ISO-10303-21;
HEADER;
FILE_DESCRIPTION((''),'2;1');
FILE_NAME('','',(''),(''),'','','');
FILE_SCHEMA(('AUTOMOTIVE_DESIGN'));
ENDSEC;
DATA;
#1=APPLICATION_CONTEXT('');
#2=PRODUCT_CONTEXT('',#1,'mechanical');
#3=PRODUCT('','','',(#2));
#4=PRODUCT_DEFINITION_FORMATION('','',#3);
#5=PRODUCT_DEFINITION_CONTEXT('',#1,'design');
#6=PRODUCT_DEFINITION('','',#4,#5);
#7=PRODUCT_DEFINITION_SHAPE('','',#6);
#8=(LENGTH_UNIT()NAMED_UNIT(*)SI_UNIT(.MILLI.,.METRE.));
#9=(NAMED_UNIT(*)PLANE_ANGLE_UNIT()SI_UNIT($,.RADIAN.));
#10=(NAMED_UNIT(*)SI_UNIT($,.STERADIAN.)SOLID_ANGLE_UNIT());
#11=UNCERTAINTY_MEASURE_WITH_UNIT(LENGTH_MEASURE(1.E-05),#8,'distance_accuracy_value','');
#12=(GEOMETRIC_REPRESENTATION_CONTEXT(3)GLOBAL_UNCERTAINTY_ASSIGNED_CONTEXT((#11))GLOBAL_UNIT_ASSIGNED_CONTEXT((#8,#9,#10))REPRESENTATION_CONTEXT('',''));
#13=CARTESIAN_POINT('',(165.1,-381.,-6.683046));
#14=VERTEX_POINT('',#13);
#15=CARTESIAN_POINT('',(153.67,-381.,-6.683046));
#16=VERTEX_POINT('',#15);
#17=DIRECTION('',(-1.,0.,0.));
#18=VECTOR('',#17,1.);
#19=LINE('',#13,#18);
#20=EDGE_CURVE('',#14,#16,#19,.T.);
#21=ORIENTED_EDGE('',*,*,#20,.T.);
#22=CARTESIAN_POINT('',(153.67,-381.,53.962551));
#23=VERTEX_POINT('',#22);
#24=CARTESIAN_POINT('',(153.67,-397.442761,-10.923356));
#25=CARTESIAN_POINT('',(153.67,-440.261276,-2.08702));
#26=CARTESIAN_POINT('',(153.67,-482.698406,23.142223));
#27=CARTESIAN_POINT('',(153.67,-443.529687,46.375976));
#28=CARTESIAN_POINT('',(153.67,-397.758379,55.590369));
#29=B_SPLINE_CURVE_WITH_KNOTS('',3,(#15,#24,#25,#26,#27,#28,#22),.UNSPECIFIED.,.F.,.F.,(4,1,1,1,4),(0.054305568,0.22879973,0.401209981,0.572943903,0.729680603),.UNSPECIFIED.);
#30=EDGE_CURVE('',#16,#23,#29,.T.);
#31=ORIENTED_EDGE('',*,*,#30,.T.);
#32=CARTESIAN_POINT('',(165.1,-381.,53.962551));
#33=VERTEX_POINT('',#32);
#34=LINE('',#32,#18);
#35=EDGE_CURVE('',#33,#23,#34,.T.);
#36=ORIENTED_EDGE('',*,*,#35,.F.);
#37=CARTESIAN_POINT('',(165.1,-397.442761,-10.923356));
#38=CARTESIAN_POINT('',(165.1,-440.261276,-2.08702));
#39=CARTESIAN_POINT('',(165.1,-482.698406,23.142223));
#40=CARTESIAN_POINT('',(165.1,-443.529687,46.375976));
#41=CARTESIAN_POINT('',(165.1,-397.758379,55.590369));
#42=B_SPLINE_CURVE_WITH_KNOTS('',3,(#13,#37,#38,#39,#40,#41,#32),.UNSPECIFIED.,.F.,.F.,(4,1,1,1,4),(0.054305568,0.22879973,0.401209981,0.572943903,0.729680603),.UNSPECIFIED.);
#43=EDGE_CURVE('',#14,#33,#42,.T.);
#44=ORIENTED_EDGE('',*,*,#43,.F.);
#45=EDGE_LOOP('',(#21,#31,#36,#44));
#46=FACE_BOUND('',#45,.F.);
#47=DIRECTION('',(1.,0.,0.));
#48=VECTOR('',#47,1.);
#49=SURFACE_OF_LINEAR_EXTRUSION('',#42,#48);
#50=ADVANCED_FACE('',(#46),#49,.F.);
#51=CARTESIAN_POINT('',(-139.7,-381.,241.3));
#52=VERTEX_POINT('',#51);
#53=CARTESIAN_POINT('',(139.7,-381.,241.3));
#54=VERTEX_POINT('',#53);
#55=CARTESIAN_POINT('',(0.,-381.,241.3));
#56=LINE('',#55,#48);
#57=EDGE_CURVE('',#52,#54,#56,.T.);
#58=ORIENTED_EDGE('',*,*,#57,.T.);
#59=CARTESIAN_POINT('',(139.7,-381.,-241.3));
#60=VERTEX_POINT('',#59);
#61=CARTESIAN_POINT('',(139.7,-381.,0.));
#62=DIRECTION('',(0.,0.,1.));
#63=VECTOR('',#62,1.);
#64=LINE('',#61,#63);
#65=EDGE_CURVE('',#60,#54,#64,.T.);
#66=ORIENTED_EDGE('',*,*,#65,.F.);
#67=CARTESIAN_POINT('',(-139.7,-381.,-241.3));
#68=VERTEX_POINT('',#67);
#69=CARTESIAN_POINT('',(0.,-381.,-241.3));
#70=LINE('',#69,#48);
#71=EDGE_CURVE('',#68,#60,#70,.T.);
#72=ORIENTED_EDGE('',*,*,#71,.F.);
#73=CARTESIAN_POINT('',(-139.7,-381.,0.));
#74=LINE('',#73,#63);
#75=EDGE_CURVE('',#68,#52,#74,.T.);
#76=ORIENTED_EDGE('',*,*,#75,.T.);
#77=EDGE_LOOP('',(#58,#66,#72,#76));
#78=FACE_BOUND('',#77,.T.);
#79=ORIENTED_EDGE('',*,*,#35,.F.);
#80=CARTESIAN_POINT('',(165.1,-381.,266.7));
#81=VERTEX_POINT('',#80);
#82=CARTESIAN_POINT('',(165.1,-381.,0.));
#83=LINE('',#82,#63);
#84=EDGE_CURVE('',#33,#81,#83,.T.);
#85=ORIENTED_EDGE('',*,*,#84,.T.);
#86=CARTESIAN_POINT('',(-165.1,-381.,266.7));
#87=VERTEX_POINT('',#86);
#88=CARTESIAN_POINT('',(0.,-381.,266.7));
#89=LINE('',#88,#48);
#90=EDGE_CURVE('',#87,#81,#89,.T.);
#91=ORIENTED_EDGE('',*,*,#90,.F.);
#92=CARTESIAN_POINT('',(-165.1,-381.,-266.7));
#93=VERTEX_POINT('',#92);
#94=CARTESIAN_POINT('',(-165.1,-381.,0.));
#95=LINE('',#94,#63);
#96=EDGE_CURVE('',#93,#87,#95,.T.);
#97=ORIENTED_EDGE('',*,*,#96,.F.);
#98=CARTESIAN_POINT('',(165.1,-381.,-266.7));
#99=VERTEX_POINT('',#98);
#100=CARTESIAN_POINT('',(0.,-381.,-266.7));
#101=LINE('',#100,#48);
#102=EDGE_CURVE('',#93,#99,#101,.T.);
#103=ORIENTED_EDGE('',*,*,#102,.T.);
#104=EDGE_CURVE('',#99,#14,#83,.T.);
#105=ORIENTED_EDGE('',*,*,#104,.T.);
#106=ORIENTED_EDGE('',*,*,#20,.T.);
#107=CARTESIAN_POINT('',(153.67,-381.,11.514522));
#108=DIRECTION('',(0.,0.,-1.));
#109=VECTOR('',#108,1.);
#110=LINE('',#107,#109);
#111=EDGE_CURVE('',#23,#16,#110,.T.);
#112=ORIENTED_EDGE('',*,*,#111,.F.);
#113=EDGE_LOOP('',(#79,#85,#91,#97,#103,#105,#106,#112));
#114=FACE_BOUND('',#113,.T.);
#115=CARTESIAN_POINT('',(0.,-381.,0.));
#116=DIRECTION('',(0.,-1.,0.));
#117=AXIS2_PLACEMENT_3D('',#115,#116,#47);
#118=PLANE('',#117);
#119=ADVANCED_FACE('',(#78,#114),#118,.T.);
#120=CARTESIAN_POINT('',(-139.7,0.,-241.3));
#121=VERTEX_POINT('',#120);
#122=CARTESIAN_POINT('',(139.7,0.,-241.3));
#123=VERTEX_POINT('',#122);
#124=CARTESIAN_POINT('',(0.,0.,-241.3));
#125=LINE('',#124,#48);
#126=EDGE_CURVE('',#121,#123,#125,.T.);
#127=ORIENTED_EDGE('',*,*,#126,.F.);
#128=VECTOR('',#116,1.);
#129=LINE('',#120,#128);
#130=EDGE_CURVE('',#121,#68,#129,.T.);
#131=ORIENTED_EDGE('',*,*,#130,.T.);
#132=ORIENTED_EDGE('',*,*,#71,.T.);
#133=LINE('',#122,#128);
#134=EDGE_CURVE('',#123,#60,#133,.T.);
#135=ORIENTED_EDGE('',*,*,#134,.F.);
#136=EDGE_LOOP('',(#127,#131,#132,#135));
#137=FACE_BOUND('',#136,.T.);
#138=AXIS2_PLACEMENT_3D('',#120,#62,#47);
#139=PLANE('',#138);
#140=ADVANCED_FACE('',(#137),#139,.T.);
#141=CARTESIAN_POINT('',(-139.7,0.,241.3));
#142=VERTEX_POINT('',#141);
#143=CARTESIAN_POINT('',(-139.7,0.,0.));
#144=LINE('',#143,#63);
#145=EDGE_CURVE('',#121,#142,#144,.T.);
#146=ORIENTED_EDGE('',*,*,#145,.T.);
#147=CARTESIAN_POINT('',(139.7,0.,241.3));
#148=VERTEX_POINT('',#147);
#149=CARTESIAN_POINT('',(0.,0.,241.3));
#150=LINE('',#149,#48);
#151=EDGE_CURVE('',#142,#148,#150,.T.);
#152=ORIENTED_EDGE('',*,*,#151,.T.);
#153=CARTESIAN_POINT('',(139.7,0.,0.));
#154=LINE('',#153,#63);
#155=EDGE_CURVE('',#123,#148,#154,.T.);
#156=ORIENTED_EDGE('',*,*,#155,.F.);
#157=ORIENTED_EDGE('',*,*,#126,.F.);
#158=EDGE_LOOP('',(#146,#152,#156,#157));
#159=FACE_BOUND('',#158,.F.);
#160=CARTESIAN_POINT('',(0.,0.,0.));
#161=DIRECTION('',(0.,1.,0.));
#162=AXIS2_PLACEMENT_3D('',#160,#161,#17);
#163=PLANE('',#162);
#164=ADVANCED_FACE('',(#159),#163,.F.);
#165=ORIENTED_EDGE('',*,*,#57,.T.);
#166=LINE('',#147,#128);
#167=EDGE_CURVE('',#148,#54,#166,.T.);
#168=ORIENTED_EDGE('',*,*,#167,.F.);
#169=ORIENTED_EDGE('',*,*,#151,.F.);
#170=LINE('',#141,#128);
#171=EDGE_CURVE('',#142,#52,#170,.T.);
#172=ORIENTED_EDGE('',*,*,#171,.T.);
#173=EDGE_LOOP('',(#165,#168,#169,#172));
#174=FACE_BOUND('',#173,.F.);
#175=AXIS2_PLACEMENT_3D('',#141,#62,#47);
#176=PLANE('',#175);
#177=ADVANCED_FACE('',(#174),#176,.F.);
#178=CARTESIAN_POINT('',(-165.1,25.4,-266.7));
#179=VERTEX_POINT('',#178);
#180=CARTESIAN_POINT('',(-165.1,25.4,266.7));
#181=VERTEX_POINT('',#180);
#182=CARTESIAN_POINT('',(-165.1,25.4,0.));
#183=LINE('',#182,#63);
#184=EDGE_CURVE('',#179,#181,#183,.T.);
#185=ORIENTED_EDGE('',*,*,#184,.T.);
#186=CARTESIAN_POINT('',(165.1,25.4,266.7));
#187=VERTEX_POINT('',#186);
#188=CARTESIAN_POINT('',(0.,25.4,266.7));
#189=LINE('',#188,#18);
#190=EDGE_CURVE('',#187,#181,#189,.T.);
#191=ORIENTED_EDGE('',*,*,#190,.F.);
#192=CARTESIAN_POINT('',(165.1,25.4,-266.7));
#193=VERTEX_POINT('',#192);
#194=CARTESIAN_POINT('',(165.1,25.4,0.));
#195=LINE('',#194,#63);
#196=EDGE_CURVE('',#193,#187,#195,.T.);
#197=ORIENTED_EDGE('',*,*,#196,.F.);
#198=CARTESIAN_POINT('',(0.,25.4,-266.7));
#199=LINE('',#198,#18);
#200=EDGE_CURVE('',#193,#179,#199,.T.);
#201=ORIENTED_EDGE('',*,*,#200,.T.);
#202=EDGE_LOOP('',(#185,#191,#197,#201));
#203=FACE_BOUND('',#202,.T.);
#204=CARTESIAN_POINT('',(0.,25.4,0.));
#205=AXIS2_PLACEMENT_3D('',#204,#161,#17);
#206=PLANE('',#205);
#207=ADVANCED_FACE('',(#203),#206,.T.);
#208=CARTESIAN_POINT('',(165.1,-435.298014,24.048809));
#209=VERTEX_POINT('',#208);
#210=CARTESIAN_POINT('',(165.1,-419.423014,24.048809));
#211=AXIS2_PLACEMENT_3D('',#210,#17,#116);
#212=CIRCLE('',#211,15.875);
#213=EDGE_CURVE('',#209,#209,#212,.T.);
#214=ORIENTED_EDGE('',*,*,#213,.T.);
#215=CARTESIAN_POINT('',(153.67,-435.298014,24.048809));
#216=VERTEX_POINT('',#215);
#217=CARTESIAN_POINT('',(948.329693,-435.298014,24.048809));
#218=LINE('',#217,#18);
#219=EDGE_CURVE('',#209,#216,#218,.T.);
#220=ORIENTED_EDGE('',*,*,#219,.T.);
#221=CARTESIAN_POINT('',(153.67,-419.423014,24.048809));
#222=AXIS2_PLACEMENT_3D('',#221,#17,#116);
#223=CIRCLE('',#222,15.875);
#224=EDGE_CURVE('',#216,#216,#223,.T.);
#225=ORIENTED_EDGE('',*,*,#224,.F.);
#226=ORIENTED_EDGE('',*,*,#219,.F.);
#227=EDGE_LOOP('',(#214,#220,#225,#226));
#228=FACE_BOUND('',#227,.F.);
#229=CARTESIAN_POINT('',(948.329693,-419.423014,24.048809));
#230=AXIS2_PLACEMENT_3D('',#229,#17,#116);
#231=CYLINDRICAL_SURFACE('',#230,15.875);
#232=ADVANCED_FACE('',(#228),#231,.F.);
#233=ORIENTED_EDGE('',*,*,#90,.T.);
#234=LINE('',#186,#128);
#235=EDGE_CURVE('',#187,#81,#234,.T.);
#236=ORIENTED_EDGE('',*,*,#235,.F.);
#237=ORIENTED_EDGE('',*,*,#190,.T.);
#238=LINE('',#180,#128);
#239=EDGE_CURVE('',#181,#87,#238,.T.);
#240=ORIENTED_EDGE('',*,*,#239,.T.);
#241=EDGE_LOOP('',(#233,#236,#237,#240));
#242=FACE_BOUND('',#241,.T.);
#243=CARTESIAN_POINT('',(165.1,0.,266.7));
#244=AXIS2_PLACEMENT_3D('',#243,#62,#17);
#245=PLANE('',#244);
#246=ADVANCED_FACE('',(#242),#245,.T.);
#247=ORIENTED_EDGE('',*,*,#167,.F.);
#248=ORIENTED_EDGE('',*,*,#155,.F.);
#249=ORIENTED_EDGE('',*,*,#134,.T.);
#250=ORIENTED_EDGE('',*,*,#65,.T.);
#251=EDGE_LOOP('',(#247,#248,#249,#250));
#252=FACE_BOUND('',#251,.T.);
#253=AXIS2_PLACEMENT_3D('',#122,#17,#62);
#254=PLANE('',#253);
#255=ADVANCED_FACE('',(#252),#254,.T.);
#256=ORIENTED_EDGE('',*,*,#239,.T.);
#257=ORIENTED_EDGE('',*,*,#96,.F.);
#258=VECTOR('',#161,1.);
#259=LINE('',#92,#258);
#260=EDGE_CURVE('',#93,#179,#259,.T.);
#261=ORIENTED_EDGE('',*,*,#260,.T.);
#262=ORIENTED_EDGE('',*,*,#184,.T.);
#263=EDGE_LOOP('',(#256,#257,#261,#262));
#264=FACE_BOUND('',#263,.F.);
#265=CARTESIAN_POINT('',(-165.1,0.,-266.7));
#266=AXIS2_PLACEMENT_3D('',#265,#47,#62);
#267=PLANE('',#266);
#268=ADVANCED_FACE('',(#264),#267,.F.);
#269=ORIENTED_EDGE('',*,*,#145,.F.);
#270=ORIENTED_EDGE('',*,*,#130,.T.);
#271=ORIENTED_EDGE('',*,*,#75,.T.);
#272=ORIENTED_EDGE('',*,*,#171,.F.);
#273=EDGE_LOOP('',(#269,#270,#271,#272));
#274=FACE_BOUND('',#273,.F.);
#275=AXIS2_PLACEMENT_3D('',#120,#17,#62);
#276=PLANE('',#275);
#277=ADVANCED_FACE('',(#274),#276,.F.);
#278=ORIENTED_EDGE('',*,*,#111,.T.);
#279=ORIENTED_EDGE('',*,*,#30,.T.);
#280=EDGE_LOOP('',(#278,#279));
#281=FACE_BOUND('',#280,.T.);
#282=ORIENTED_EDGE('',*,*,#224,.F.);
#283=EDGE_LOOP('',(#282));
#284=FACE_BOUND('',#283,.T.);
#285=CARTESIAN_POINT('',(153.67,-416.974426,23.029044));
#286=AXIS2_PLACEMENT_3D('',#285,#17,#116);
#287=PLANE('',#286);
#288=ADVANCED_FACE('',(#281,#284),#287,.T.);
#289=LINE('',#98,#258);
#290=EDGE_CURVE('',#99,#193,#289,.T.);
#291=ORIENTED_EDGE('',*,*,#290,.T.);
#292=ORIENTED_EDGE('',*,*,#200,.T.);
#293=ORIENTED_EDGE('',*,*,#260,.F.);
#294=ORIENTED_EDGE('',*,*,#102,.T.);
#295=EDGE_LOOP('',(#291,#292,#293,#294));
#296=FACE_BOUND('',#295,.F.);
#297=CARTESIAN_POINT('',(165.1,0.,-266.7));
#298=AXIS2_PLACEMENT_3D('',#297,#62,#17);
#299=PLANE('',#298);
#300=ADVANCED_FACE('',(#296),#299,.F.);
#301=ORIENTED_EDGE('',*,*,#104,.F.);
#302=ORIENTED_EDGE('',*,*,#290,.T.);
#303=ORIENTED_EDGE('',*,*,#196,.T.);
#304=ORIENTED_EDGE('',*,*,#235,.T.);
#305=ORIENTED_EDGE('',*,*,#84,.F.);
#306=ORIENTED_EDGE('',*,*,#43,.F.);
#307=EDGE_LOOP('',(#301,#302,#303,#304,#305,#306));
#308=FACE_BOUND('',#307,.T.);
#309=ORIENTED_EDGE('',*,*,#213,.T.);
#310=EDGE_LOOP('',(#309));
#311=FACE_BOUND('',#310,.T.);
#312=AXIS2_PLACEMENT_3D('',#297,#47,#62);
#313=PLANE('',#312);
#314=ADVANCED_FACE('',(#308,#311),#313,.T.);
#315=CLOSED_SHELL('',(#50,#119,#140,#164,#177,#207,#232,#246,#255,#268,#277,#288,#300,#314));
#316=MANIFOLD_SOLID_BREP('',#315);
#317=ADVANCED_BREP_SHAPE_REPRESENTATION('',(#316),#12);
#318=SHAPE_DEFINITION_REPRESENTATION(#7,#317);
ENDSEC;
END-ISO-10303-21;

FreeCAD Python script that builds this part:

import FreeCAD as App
import Part
import Sketcher
Q = App.Units.Quantity


def add_polygon(sketch, points):
    """Adds a closed chain of lines whose ends are joined by coincident constraints."""
    first, n = sketch.GeometryCount, len(points)
    for a, b in zip(points, points[1:] + points[:1]):
        sketch.addGeometry(Part.LineSegment(App.Vector(*a, 0), App.Vector(*b, 0)), False)
    for i in range(n):
        sketch.addConstraint(Sketcher.Constraint("Coincident", first + i, 2, first + (i + 1) % n, 1))

doc = App.newDocument("Part")
params = doc.addObject("Spreadsheet::Sheet", "Params")
for row, (alias, value) in enumerate([
    ("sketch1_width", "13 in"),
    ("sketch1_width2", "11 in"),
    ("sketch1_height", "21 in"),
    ("sketch1_height2", "19 in"),
    ("pad1_length", "15 in"),
    ("pad2_length", "0.45 in"),
    ("sketch3_diameter", "1.25 in"),
    ("hole_diameter", "1.25 in"),
    ("sketch4_width", "13 in"),
    ("sketch4_height", "21 in"),
    ("pad3_length", "1 in"),
], start=1):
    params.set(f"A{row}", alias)
    params.set(f"B{row}", "=" + value)
    params.setAlias(f"B{row}", alias)

body = doc.addObject("PartDesign::Body", "Body")

# Sketch on XZ plane
sketch1 = doc.addObject("Sketcher::SketchObject", "Sketch")
body.addObject(sketch1)
sketch1.AttachmentSupport = (doc.XZ_Plane, [""])
sketch1.MapMode = "FlatFace"
add_polygon(sketch1, [(-165, 267), (-165, -267), (165, -267), (165, 267)])  # lines 0-3
add_polygon(sketch1, [(140, -241), (-140, -241), (-140, 241), (140, 241)])  # lines 4-7
sketch1.addConstraint(Sketcher.Constraint("Vertical", 0))
sketch1.addConstraint(Sketcher.Constraint("Horizontal", 1))
sketch1.addConstraint(Sketcher.Constraint("Vertical", 2))
sketch1.addConstraint(Sketcher.Constraint("Horizontal", 3))
sketch1.addConstraint(Sketcher.Constraint("Horizontal", 4))
sketch1.addConstraint(Sketcher.Constraint("Vertical", 5))
sketch1.addConstraint(Sketcher.Constraint("Horizontal", 6))
sketch1.addConstraint(Sketcher.Constraint("Vertical", 7))
sketch1.addConstraint(Sketcher.Constraint("Symmetric", 0, 2, 2, 2, -1, 1))
sketch1.addConstraint(Sketcher.Constraint("Symmetric", 4, 2, 6, 2, -1, 1))
sketch1.addConstraint(Sketcher.Constraint("DistanceX", 1, 1, 1, 2, Q("13 in")))
sketch1.addConstraint(Sketcher.Constraint("DistanceX", 4, 2, 4, 1, Q("11 in")))
sketch1.addConstraint(Sketcher.Constraint("DistanceY", 0, 2, 0, 1, Q("21 in")))
sketch1.addConstraint(Sketcher.Constraint("DistanceY", 5, 1, 5, 2, Q("19 in")))
sketch1.setExpression("Constraints[18]", "Params.sketch1_width")
sketch1.setExpression("Constraints[19]", "Params.sketch1_width2")
sketch1.setExpression("Constraints[20]", "Params.sketch1_height")
sketch1.setExpression("Constraints[21]", "Params.sketch1_height2")
pad1 = doc.addObject("PartDesign::Pad", "Pad")
body.addObject(pad1)
pad1.Profile = sketch1
pad1.setExpression("Length", "Params.pad1_length")

# Sketch on YZ plane
sketch2 = doc.addObject("Sketcher::SketchObject", "Sketch001")
body.addObject(sketch2)
sketch2.AttachmentSupport = (doc.YZ_Plane, [""])
sketch2.MapMode = "FlatFace"
sketch2.AttachmentOffset = App.Placement(App.Vector(0, 0, 6.5 * 25.4), App.Rotation())
sketch2.addGeometry(Part.BSplineCurve([App.Vector(-381, -6.683046, 0), App.Vector(-397.442761, -10.923356, 0), App.Vector(-440.261276, -2.08702, 0), App.Vector(-482.698406, 23.142223, 0), App.Vector(-443.529687, 46.375976, 0), App.Vector(-397.758379, 55.590369, 0), App.Vector(-381, 53.962551, 0)], [4, 1, 1, 1, 4], [0.054305568, 0.22879973, 0.401209981, 0.572943903, 0.729680603], False, 3, [1, 1, 1, 1, 1, 1, 1], False), False)
sketch2.addGeometry(Part.BSplineCurve([App.Vector(-367.392331, 0, 0), App.Vector(-371.258955, -3.202536, 0), App.Vector(-375.882731, -5.363389, 0), App.Vector(-381, -6.683046, 0)], [4, 4], [0, 0.054305568], False, 3, [1, 1, 1, 1], False), False)
sketch2.addGeometry(Part.BSplineCurve([App.Vector(-381, 53.962551, 0), App.Vector(-372.011395, 53.089447, 0), App.Vector(-347.81015, 44.708865, 0), App.Vector(-354.131005, 10.98371, 0), App.Vector(-367.392331, 0, 0)], [4, 1, 4], [0.729680603, 0.813748654, 1], False, 3, [1, 1, 1, 1, 1], False), False)
sketch2.addConstraint(Sketcher.Constraint("Block", 0))
sketch2.addConstraint(Sketcher.Constraint("Block", 1))
sketch2.addConstraint(Sketcher.Constraint("Block", 2))
pad2 = doc.addObject("PartDesign::Pad", "Pad001")
body.addObject(pad2)
pad2.Profile = sketch2
pad2.setExpression("Length", "Params.pad2_length")
pad2.Reversed = True

# Sketch on YZ plane
sketch3 = doc.addObject("Sketcher::SketchObject", "Sketch002")
body.addObject(sketch3)
sketch3.AttachmentSupport = (doc.YZ_Plane, [""])
sketch3.MapMode = "FlatFace"
sketch3.AttachmentOffset = App.Placement(App.Vector(0, 0, 6.5 * 25.4), App.Rotation())
sketch3.addGeometry(Part.Circle(App.Vector(-419, 24, 0), App.Vector(0, 0, 1), 16), False)
sketch3.addConstraint(Sketcher.Constraint("Diameter", 0, Q("1.25 in")))
sketch3.addConstraint(Sketcher.Constraint("DistanceY", -1, 1, 0, 3, Q("24.048809 mm")))
sketch3.addConstraint(Sketcher.Constraint("DistanceX", 0, 3, -1, 1, Q("419.423014 mm")))
sketch3.setExpression("Constraints[0]", "Params.sketch3_diameter")
doc.recompute()
hole = doc.addObject("PartDesign::Hole", "Hole")
body.addObject(hole)
hole.Profile = sketch3
hole.ThreadType = "None"
hole.setExpression("Diameter", "Params.hole_diameter")
hole.DepthType = "ThroughAll"

# Sketch on XZ plane
sketch4 = doc.addObject("Sketcher::SketchObject", "Sketch003")
body.addObject(sketch4)
sketch4.AttachmentSupport = (doc.XZ_Plane, [""])
sketch4.MapMode = "FlatFace"
add_polygon(sketch4, [(165, 267), (165, -267), (-165, -267), (-165, 267)])  # lines 0-3
sketch4.addConstraint(Sketcher.Constraint("Vertical", 0))
sketch4.addConstraint(Sketcher.Constraint("Horizontal", 1))
sketch4.addConstraint(Sketcher.Constraint("Vertical", 2))
sketch4.addConstraint(Sketcher.Constraint("Horizontal", 3))
sketch4.addConstraint(Sketcher.Constraint("Symmetric", 0, 2, 2, 2, -1, 1))
sketch4.addConstraint(Sketcher.Constraint("DistanceX", 1, 2, 1, 1, Q("13 in")))
sketch4.addConstraint(Sketcher.Constraint("DistanceY", 0, 2, 0, 1, Q("21 in")))
sketch4.setExpression("Constraints[9]", "Params.sketch4_width")
sketch4.setExpression("Constraints[10]", "Params.sketch4_height")
pad3 = doc.addObject("PartDesign::Pad", "Pad002")
body.addObject(pad3)
pad3.Profile = sketch4
pad3.setExpression("Length", "Params.pad3_length")
pad3.Reversed = True

doc.recompute()
